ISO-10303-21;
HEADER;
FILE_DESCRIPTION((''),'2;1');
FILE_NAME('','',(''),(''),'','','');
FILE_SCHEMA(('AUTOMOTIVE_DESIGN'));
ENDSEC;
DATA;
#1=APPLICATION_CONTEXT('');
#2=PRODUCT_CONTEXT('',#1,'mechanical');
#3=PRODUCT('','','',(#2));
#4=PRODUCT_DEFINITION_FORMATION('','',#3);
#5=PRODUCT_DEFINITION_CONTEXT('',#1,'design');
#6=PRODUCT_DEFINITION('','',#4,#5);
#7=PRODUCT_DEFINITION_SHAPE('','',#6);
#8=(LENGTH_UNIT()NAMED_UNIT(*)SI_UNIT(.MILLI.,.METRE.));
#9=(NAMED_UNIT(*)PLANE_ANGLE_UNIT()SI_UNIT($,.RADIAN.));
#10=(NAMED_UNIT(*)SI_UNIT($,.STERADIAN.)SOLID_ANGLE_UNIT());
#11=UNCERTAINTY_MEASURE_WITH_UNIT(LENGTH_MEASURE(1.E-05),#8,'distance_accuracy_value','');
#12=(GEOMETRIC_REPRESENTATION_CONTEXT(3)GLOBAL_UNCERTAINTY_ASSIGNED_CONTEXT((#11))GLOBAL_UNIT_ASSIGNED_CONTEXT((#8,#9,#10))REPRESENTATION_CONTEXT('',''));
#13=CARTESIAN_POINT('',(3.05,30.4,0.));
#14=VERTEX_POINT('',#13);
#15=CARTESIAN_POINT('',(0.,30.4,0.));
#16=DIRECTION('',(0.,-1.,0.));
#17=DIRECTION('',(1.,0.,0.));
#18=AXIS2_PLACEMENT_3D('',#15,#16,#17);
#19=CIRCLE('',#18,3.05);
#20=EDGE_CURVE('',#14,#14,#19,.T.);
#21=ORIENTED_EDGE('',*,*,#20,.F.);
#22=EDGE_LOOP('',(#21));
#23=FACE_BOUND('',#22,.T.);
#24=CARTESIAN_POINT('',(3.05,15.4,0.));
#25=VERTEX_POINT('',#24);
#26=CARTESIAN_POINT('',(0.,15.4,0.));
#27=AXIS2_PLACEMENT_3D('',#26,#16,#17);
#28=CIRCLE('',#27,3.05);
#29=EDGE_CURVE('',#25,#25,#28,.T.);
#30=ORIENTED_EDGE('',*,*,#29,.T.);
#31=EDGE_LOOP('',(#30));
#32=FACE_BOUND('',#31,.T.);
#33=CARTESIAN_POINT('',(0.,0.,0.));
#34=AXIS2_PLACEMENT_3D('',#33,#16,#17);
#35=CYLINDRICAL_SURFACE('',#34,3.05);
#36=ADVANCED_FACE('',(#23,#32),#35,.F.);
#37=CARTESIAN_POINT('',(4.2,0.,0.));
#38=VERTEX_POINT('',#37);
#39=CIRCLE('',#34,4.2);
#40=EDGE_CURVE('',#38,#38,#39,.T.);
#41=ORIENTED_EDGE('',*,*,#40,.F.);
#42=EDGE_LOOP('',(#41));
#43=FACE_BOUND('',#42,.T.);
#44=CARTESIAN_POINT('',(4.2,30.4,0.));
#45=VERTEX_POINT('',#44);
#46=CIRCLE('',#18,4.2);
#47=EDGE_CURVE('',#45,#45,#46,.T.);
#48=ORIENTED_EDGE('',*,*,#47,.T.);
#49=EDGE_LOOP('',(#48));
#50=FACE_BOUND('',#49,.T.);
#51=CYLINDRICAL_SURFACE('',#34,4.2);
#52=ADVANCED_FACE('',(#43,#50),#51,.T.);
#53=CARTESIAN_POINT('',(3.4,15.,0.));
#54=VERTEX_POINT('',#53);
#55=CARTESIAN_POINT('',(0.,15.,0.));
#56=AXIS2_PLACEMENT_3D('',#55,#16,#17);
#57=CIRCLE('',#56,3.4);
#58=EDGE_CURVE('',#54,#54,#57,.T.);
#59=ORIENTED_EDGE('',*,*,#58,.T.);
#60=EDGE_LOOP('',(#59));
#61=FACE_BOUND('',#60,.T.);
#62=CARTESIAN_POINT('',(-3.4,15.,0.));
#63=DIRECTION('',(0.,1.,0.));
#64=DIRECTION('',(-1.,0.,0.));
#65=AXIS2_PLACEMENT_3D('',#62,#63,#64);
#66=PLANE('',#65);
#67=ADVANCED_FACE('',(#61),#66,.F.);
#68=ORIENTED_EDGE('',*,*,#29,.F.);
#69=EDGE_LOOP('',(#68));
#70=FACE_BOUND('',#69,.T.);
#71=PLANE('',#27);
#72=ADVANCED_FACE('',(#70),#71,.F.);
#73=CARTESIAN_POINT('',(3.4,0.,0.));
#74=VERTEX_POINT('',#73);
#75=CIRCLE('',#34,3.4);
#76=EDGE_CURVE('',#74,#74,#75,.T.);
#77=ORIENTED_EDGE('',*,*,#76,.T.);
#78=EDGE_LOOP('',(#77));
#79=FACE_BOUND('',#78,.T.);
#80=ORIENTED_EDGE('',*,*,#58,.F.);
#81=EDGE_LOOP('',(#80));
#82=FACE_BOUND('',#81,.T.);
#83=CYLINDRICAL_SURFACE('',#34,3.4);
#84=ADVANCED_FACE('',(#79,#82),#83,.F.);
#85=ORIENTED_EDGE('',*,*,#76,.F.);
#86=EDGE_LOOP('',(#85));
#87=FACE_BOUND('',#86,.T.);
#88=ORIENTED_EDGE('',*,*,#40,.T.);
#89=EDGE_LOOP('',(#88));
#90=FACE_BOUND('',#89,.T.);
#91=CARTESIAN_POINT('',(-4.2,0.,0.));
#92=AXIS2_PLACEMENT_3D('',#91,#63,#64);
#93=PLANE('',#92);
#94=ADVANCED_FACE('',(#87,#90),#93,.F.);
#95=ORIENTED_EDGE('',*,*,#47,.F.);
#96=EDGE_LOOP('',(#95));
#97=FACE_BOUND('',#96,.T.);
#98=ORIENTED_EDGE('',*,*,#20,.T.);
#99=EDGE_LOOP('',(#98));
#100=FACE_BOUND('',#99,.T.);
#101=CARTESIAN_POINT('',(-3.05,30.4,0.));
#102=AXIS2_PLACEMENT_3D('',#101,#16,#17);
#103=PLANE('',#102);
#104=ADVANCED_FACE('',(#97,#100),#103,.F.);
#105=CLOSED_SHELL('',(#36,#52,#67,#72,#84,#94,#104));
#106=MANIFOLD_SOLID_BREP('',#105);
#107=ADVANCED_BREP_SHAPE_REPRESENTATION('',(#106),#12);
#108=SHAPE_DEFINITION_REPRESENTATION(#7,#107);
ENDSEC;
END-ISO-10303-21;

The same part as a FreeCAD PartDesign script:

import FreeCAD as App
import Part
import Sketcher

V = App.Vector


def add_polygon(sketch, points):
    """Adds a closed chain of lines whose ends are joined by coincident constraints."""
    first, n = sketch.GeometryCount, len(points)
    for a, b in zip(points, points[1:] + points[:1]):
        sketch.addGeometry(Part.LineSegment(App.Vector(*a, 0), App.Vector(*b, 0)), False)
    for i in range(n):
        sketch.addConstraint(Sketcher.Constraint("Coincident", first + i, 2, first + (i + 1) % n, 1))

doc = App.newDocument("Part")
params = doc.addObject("Spreadsheet::Sheet", "Params")
for row, (alias, value) in enumerate([
    ("sketch1_height", "15 mm"),
    ("sketch1_width", "3.4 mm"),
    ("sketch1_width2", "0.8 mm"),
    ("sketch1_height2", "0.4 mm"),
    ("sketch1_width3", "3.05 mm"),
    ("revolution_angle", "360 deg"),
], start=1):
    params.set(f"A{row}", alias)
    params.set(f"B{row}", "=" + value)
    params.setAlias(f"B{row}", alias)

body = doc.addObject("PartDesign::Body", "Body")

sketch1 = body.newObject("Sketcher::SketchObject", "Sketch")
sketch1.AttachmentSupport = (doc.getObject("XY_Plane"), [""])
sketch1.MapMode = "FlatFace"
add_polygon(sketch1, [(-3.4, 0), (-3.4, 15), (0, 15), (0, 15.4), (-3.05, 15.4), (-3.05, 30.4), (-4.2, 30.4), (-4.2, 0)])
sketch1.addConstraint(Sketcher.Constraint("Vertical", 0))
sketch1.addConstraint(Sketcher.Constraint("Horizontal", 1))
sketch1.addConstraint(Sketcher.Constraint("Vertical", 2))
sketch1.addConstraint(Sketcher.Constraint("Horizontal", 3))
sketch1.addConstraint(Sketcher.Constraint("Vertical", 4))
sketch1.addConstraint(Sketcher.Constraint("Horizontal", 5))
sketch1.addConstraint(Sketcher.Constraint("Vertical", 6))
sketch1.addConstraint(Sketcher.Constraint("Horizontal", 7))
sketch1.addConstraint(Sketcher.Constraint("PointOnObject", 1, 2, -2))
sketch1.addConstraint(Sketcher.Constraint("PointOnObject", 6, 2, -1))
sketch1.addConstraint(Sketcher.Constraint("Equal", 0, 4))
sketch1.addConstraint(Sketcher.Constraint("DistanceY", 0, 1, 0, 2, 15.0))
sketch1.addConstraint(Sketcher.Constraint("DistanceX", 1, 1, 1, 2, 3.4))
sketch1.addConstraint(Sketcher.Constraint("DistanceX", 7, 1, 7, 2, 0.8))
sketch1.addConstraint(Sketcher.Constraint("DistanceY", 2, 1, 2, 2, 0.4))
sketch1.addConstraint(Sketcher.Constraint("DistanceX", 3, 2, 3, 1, 3.05))
sketch1.setExpression("Constraints[19]", "Params.sketch1_height")
sketch1.setExpression("Constraints[20]", "Params.sketch1_width")
sketch1.setExpression("Constraints[21]", "Params.sketch1_width2")
sketch1.setExpression("Constraints[22]", "Params.sketch1_height2")
sketch1.setExpression("Constraints[23]", "Params.sketch1_width3")
revolution = body.newObject("PartDesign::Revolution", "Revolution")
revolution.Profile = sketch1
revolution.ReferenceAxis = (sketch1, ["V_Axis"])
revolution.setExpression("Angle", "Params.revolution_angle")

doc.recompute()
